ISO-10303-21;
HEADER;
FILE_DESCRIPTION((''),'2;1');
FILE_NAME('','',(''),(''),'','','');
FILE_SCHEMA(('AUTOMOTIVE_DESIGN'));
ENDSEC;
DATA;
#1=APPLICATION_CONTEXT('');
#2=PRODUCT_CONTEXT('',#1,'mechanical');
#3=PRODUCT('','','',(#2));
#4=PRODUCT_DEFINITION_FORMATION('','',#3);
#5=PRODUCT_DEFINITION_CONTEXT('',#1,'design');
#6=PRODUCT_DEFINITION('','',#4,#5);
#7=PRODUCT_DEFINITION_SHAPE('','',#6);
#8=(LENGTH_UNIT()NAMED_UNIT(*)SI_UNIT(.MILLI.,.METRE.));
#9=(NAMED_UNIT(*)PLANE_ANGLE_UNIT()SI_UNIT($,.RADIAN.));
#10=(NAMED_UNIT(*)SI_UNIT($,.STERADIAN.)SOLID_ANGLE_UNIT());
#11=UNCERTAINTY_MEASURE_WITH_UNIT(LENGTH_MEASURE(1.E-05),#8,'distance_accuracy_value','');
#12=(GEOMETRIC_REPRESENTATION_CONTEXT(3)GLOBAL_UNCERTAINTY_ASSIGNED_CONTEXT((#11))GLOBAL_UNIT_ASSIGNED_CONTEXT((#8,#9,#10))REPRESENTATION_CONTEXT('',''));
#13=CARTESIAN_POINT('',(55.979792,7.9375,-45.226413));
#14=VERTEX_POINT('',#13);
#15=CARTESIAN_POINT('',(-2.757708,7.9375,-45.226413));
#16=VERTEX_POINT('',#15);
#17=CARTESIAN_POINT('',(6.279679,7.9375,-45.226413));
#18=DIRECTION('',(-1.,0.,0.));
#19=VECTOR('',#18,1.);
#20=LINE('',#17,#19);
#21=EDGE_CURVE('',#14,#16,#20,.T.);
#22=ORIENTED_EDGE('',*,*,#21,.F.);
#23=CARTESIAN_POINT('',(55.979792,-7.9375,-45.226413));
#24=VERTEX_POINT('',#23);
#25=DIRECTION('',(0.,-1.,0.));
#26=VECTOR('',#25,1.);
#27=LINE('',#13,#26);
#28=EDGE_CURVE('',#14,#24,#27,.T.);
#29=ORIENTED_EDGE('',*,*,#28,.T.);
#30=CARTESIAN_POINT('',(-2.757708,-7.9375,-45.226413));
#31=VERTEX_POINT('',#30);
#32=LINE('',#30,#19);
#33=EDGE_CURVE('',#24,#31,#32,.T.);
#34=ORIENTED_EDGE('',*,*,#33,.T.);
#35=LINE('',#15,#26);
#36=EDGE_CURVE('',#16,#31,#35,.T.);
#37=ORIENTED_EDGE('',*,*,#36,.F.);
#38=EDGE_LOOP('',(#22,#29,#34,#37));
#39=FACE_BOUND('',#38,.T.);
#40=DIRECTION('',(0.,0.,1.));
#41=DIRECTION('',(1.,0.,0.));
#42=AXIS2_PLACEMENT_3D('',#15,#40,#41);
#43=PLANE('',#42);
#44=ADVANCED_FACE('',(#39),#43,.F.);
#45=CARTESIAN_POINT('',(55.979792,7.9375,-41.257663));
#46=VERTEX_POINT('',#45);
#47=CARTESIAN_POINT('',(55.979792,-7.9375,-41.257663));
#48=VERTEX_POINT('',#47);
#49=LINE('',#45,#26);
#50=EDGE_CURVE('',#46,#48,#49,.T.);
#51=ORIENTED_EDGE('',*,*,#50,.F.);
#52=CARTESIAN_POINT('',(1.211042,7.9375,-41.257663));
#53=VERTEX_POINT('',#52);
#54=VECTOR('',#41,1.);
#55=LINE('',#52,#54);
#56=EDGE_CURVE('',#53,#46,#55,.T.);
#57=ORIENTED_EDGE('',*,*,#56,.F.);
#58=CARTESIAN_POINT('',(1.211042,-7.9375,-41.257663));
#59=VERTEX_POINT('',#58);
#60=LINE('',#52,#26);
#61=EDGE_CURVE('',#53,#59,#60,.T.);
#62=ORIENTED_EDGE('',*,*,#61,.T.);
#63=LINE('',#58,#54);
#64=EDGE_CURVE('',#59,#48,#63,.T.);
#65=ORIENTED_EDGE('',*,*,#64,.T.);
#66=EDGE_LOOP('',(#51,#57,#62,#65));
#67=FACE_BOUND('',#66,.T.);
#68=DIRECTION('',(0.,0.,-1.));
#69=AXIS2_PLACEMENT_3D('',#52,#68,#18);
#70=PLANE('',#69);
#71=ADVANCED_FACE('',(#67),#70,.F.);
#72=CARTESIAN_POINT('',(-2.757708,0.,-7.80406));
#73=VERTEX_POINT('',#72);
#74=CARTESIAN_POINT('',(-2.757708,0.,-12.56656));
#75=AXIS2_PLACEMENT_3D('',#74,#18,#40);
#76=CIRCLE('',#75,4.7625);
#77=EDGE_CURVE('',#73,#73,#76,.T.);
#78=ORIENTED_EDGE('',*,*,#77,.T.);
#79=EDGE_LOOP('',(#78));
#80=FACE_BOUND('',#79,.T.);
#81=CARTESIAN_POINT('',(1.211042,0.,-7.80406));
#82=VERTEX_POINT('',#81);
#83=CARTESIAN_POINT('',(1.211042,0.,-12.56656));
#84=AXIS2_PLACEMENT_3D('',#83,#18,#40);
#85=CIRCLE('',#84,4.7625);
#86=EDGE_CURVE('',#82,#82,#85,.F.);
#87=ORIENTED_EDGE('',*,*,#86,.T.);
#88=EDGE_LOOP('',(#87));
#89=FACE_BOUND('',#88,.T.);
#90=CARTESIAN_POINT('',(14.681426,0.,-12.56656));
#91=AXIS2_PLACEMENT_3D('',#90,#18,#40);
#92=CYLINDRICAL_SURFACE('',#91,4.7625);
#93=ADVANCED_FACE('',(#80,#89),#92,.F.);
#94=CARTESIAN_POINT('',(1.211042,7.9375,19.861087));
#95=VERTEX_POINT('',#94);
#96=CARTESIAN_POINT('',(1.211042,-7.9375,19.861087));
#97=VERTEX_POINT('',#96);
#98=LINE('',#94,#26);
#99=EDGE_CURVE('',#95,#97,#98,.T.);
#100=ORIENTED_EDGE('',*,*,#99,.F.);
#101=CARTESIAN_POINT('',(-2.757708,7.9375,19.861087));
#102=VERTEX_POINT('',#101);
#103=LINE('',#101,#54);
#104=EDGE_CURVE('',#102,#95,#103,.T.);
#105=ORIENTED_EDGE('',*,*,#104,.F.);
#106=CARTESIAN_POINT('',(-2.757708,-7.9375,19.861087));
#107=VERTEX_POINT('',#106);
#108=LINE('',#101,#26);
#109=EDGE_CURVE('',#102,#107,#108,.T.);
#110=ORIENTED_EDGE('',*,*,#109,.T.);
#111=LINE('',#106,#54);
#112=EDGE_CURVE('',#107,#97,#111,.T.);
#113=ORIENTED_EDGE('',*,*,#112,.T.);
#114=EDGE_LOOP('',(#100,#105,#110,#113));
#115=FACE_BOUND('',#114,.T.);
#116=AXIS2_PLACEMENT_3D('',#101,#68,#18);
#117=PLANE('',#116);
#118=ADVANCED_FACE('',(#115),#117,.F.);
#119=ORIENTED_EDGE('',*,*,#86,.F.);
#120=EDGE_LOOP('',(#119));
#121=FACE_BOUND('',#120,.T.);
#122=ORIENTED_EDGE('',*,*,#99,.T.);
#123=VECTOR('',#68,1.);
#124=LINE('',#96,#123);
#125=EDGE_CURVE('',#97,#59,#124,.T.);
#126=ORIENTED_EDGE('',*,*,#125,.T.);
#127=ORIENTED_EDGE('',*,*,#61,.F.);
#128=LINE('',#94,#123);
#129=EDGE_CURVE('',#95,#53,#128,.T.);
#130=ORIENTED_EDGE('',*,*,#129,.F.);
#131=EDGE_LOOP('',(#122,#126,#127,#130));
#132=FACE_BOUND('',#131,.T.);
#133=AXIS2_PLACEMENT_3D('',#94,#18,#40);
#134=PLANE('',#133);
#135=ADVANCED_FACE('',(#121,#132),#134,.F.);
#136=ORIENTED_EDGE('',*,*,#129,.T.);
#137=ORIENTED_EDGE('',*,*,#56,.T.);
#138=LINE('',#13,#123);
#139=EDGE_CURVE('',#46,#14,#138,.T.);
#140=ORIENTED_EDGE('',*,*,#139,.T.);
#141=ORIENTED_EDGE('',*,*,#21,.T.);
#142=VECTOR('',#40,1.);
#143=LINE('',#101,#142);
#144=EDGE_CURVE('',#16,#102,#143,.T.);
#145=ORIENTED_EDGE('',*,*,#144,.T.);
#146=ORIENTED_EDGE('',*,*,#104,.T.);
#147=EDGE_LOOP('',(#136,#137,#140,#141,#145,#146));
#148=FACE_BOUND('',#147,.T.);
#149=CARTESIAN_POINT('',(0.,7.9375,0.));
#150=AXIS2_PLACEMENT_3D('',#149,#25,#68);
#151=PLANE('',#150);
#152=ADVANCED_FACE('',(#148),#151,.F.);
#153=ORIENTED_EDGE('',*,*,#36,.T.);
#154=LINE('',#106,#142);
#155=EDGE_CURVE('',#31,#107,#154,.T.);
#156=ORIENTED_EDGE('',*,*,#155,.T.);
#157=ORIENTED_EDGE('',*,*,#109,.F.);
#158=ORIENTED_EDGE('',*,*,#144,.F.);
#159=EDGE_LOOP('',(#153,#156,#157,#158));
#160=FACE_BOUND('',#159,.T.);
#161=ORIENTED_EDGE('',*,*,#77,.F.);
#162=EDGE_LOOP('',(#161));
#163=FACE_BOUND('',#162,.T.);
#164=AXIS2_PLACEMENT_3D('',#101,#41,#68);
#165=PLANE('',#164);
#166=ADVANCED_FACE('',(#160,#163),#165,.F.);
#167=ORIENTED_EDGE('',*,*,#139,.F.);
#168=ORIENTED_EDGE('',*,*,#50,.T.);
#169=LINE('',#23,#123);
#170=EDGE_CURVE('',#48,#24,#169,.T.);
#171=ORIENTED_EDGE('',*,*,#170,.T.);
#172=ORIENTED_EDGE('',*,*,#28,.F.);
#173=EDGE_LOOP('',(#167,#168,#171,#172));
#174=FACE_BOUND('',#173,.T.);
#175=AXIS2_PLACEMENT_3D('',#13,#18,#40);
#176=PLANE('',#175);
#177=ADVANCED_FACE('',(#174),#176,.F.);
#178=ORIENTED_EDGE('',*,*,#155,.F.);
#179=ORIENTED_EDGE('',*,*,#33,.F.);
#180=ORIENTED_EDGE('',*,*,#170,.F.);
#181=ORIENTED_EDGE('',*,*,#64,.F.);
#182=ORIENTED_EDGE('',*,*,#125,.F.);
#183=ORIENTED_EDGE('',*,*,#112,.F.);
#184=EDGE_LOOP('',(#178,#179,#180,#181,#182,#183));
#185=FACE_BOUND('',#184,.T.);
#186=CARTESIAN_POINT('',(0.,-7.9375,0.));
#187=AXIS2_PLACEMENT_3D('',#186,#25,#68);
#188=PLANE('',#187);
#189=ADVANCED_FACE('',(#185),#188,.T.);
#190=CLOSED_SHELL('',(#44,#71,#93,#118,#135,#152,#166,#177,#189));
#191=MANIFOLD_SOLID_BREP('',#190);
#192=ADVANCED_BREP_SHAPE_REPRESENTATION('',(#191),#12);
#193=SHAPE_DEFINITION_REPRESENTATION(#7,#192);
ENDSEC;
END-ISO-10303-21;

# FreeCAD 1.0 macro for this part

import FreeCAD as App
import Part
import Sketcher
Q = App.Units.Quantity


def add_polygon(sketch, points):
    """Adds a closed chain of lines whose ends are joined by coincident constraints."""
    first, n = sketch.GeometryCount, len(points)
    for a, b in zip(points, points[1:] + points[:1]):
        sketch.addGeometry(Part.LineSegment(App.Vector(*a, 0), App.Vector(*b, 0)), False)
    for i in range(n):
        sketch.addConstraint(Sketcher.Constraint("Coincident", first + i, 2, first + (i + 1) % n, 1))

doc = App.newDocument("Part")
body = doc.addObject("PartDesign::Body", "Body")

# Sketch on XZ plane
sketch1 = body.newObject("Sketcher::SketchObject", "Sketch")
sketch1.AttachmentSupport = (doc.getObject("XZ_Plane"), [""])
sketch1.MapMode = "FlatFace"
add_polygon(sketch1, [(-2.8, 19.9), (1.2, 19.9), (1.2, -41.3), (56, -41.3), (56, -45.2), (-2.8, -45.2)])  # lines 0-5
sketch1.addConstraint(Sketcher.Constraint("Horizontal", 0))
sketch1.addConstraint(Sketcher.Constraint("Vertical", 1))
sketch1.addConstraint(Sketcher.Constraint("Horizontal", 2))
sketch1.addConstraint(Sketcher.Constraint("Vertical", 3))
sketch1.addConstraint(Sketcher.Constraint("Horizontal", 4))
sketch1.addConstraint(Sketcher.Constraint("Vertical", 5))
sketch1.addConstraint(Sketcher.Constraint("Equal", 0, 3))
sketch1.addConstraint(Sketcher.Constraint("DistanceX", 0, 1, 0, 2, Q("0.15625 in")))
sketch1.addConstraint(Sketcher.Constraint("DistanceX", 2, 1, 2, 2, Q("2.15625 in")))
sketch1.addConstraint(Sketcher.Constraint("DistanceY", 1, 2, 1, 1, Q("2.40625 in")))
sketch1.addConstraint(Sketcher.Constraint("DistanceX", -1, 1, 0, 2, 1.211042))
sketch1.addConstraint(Sketcher.Constraint("DistanceY", -1, 1, 0, 2, 19.861087))
pad1 = body.newObject("PartDesign::Pad", "Pad")
pad1.Profile = sketch1
pad1.Length = Q("0.625 in")
pad1.Midplane = True

# Sketch on YZ plane
sketch2 = body.newObject("Sketcher::SketchObject", "Sketch001")
sketch2.AttachmentSupport = (doc.getObject("YZ_Plane"), [""])
sketch2.MapMode = "FlatFace"
sketch2.AttachmentOffset = App.Placement(App.Vector(0, 0, -2.757708), App.Rotation())
sketch2.addGeometry(Part.Circle(App.Vector(0, -12.6, 0), App.Vector(0, 0, 1), 4.8), False)
sketch2.addConstraint(Sketcher.Constraint("PointOnObject", 0, 3, -2))
sketch2.addConstraint(Sketcher.Constraint("Diameter", 0, Q("0.375 in")))
sketch2.addConstraint(Sketcher.Constraint("DistanceY", 0, 3, -1, 1, 12.56656))
pocket1 = body.newObject("PartDesign::Pocket", "Pocket")
pocket1.Profile = sketch2
pocket1.Length = Q("0.15625 in")
pocket1.Reversed = True

doc.recompute()
